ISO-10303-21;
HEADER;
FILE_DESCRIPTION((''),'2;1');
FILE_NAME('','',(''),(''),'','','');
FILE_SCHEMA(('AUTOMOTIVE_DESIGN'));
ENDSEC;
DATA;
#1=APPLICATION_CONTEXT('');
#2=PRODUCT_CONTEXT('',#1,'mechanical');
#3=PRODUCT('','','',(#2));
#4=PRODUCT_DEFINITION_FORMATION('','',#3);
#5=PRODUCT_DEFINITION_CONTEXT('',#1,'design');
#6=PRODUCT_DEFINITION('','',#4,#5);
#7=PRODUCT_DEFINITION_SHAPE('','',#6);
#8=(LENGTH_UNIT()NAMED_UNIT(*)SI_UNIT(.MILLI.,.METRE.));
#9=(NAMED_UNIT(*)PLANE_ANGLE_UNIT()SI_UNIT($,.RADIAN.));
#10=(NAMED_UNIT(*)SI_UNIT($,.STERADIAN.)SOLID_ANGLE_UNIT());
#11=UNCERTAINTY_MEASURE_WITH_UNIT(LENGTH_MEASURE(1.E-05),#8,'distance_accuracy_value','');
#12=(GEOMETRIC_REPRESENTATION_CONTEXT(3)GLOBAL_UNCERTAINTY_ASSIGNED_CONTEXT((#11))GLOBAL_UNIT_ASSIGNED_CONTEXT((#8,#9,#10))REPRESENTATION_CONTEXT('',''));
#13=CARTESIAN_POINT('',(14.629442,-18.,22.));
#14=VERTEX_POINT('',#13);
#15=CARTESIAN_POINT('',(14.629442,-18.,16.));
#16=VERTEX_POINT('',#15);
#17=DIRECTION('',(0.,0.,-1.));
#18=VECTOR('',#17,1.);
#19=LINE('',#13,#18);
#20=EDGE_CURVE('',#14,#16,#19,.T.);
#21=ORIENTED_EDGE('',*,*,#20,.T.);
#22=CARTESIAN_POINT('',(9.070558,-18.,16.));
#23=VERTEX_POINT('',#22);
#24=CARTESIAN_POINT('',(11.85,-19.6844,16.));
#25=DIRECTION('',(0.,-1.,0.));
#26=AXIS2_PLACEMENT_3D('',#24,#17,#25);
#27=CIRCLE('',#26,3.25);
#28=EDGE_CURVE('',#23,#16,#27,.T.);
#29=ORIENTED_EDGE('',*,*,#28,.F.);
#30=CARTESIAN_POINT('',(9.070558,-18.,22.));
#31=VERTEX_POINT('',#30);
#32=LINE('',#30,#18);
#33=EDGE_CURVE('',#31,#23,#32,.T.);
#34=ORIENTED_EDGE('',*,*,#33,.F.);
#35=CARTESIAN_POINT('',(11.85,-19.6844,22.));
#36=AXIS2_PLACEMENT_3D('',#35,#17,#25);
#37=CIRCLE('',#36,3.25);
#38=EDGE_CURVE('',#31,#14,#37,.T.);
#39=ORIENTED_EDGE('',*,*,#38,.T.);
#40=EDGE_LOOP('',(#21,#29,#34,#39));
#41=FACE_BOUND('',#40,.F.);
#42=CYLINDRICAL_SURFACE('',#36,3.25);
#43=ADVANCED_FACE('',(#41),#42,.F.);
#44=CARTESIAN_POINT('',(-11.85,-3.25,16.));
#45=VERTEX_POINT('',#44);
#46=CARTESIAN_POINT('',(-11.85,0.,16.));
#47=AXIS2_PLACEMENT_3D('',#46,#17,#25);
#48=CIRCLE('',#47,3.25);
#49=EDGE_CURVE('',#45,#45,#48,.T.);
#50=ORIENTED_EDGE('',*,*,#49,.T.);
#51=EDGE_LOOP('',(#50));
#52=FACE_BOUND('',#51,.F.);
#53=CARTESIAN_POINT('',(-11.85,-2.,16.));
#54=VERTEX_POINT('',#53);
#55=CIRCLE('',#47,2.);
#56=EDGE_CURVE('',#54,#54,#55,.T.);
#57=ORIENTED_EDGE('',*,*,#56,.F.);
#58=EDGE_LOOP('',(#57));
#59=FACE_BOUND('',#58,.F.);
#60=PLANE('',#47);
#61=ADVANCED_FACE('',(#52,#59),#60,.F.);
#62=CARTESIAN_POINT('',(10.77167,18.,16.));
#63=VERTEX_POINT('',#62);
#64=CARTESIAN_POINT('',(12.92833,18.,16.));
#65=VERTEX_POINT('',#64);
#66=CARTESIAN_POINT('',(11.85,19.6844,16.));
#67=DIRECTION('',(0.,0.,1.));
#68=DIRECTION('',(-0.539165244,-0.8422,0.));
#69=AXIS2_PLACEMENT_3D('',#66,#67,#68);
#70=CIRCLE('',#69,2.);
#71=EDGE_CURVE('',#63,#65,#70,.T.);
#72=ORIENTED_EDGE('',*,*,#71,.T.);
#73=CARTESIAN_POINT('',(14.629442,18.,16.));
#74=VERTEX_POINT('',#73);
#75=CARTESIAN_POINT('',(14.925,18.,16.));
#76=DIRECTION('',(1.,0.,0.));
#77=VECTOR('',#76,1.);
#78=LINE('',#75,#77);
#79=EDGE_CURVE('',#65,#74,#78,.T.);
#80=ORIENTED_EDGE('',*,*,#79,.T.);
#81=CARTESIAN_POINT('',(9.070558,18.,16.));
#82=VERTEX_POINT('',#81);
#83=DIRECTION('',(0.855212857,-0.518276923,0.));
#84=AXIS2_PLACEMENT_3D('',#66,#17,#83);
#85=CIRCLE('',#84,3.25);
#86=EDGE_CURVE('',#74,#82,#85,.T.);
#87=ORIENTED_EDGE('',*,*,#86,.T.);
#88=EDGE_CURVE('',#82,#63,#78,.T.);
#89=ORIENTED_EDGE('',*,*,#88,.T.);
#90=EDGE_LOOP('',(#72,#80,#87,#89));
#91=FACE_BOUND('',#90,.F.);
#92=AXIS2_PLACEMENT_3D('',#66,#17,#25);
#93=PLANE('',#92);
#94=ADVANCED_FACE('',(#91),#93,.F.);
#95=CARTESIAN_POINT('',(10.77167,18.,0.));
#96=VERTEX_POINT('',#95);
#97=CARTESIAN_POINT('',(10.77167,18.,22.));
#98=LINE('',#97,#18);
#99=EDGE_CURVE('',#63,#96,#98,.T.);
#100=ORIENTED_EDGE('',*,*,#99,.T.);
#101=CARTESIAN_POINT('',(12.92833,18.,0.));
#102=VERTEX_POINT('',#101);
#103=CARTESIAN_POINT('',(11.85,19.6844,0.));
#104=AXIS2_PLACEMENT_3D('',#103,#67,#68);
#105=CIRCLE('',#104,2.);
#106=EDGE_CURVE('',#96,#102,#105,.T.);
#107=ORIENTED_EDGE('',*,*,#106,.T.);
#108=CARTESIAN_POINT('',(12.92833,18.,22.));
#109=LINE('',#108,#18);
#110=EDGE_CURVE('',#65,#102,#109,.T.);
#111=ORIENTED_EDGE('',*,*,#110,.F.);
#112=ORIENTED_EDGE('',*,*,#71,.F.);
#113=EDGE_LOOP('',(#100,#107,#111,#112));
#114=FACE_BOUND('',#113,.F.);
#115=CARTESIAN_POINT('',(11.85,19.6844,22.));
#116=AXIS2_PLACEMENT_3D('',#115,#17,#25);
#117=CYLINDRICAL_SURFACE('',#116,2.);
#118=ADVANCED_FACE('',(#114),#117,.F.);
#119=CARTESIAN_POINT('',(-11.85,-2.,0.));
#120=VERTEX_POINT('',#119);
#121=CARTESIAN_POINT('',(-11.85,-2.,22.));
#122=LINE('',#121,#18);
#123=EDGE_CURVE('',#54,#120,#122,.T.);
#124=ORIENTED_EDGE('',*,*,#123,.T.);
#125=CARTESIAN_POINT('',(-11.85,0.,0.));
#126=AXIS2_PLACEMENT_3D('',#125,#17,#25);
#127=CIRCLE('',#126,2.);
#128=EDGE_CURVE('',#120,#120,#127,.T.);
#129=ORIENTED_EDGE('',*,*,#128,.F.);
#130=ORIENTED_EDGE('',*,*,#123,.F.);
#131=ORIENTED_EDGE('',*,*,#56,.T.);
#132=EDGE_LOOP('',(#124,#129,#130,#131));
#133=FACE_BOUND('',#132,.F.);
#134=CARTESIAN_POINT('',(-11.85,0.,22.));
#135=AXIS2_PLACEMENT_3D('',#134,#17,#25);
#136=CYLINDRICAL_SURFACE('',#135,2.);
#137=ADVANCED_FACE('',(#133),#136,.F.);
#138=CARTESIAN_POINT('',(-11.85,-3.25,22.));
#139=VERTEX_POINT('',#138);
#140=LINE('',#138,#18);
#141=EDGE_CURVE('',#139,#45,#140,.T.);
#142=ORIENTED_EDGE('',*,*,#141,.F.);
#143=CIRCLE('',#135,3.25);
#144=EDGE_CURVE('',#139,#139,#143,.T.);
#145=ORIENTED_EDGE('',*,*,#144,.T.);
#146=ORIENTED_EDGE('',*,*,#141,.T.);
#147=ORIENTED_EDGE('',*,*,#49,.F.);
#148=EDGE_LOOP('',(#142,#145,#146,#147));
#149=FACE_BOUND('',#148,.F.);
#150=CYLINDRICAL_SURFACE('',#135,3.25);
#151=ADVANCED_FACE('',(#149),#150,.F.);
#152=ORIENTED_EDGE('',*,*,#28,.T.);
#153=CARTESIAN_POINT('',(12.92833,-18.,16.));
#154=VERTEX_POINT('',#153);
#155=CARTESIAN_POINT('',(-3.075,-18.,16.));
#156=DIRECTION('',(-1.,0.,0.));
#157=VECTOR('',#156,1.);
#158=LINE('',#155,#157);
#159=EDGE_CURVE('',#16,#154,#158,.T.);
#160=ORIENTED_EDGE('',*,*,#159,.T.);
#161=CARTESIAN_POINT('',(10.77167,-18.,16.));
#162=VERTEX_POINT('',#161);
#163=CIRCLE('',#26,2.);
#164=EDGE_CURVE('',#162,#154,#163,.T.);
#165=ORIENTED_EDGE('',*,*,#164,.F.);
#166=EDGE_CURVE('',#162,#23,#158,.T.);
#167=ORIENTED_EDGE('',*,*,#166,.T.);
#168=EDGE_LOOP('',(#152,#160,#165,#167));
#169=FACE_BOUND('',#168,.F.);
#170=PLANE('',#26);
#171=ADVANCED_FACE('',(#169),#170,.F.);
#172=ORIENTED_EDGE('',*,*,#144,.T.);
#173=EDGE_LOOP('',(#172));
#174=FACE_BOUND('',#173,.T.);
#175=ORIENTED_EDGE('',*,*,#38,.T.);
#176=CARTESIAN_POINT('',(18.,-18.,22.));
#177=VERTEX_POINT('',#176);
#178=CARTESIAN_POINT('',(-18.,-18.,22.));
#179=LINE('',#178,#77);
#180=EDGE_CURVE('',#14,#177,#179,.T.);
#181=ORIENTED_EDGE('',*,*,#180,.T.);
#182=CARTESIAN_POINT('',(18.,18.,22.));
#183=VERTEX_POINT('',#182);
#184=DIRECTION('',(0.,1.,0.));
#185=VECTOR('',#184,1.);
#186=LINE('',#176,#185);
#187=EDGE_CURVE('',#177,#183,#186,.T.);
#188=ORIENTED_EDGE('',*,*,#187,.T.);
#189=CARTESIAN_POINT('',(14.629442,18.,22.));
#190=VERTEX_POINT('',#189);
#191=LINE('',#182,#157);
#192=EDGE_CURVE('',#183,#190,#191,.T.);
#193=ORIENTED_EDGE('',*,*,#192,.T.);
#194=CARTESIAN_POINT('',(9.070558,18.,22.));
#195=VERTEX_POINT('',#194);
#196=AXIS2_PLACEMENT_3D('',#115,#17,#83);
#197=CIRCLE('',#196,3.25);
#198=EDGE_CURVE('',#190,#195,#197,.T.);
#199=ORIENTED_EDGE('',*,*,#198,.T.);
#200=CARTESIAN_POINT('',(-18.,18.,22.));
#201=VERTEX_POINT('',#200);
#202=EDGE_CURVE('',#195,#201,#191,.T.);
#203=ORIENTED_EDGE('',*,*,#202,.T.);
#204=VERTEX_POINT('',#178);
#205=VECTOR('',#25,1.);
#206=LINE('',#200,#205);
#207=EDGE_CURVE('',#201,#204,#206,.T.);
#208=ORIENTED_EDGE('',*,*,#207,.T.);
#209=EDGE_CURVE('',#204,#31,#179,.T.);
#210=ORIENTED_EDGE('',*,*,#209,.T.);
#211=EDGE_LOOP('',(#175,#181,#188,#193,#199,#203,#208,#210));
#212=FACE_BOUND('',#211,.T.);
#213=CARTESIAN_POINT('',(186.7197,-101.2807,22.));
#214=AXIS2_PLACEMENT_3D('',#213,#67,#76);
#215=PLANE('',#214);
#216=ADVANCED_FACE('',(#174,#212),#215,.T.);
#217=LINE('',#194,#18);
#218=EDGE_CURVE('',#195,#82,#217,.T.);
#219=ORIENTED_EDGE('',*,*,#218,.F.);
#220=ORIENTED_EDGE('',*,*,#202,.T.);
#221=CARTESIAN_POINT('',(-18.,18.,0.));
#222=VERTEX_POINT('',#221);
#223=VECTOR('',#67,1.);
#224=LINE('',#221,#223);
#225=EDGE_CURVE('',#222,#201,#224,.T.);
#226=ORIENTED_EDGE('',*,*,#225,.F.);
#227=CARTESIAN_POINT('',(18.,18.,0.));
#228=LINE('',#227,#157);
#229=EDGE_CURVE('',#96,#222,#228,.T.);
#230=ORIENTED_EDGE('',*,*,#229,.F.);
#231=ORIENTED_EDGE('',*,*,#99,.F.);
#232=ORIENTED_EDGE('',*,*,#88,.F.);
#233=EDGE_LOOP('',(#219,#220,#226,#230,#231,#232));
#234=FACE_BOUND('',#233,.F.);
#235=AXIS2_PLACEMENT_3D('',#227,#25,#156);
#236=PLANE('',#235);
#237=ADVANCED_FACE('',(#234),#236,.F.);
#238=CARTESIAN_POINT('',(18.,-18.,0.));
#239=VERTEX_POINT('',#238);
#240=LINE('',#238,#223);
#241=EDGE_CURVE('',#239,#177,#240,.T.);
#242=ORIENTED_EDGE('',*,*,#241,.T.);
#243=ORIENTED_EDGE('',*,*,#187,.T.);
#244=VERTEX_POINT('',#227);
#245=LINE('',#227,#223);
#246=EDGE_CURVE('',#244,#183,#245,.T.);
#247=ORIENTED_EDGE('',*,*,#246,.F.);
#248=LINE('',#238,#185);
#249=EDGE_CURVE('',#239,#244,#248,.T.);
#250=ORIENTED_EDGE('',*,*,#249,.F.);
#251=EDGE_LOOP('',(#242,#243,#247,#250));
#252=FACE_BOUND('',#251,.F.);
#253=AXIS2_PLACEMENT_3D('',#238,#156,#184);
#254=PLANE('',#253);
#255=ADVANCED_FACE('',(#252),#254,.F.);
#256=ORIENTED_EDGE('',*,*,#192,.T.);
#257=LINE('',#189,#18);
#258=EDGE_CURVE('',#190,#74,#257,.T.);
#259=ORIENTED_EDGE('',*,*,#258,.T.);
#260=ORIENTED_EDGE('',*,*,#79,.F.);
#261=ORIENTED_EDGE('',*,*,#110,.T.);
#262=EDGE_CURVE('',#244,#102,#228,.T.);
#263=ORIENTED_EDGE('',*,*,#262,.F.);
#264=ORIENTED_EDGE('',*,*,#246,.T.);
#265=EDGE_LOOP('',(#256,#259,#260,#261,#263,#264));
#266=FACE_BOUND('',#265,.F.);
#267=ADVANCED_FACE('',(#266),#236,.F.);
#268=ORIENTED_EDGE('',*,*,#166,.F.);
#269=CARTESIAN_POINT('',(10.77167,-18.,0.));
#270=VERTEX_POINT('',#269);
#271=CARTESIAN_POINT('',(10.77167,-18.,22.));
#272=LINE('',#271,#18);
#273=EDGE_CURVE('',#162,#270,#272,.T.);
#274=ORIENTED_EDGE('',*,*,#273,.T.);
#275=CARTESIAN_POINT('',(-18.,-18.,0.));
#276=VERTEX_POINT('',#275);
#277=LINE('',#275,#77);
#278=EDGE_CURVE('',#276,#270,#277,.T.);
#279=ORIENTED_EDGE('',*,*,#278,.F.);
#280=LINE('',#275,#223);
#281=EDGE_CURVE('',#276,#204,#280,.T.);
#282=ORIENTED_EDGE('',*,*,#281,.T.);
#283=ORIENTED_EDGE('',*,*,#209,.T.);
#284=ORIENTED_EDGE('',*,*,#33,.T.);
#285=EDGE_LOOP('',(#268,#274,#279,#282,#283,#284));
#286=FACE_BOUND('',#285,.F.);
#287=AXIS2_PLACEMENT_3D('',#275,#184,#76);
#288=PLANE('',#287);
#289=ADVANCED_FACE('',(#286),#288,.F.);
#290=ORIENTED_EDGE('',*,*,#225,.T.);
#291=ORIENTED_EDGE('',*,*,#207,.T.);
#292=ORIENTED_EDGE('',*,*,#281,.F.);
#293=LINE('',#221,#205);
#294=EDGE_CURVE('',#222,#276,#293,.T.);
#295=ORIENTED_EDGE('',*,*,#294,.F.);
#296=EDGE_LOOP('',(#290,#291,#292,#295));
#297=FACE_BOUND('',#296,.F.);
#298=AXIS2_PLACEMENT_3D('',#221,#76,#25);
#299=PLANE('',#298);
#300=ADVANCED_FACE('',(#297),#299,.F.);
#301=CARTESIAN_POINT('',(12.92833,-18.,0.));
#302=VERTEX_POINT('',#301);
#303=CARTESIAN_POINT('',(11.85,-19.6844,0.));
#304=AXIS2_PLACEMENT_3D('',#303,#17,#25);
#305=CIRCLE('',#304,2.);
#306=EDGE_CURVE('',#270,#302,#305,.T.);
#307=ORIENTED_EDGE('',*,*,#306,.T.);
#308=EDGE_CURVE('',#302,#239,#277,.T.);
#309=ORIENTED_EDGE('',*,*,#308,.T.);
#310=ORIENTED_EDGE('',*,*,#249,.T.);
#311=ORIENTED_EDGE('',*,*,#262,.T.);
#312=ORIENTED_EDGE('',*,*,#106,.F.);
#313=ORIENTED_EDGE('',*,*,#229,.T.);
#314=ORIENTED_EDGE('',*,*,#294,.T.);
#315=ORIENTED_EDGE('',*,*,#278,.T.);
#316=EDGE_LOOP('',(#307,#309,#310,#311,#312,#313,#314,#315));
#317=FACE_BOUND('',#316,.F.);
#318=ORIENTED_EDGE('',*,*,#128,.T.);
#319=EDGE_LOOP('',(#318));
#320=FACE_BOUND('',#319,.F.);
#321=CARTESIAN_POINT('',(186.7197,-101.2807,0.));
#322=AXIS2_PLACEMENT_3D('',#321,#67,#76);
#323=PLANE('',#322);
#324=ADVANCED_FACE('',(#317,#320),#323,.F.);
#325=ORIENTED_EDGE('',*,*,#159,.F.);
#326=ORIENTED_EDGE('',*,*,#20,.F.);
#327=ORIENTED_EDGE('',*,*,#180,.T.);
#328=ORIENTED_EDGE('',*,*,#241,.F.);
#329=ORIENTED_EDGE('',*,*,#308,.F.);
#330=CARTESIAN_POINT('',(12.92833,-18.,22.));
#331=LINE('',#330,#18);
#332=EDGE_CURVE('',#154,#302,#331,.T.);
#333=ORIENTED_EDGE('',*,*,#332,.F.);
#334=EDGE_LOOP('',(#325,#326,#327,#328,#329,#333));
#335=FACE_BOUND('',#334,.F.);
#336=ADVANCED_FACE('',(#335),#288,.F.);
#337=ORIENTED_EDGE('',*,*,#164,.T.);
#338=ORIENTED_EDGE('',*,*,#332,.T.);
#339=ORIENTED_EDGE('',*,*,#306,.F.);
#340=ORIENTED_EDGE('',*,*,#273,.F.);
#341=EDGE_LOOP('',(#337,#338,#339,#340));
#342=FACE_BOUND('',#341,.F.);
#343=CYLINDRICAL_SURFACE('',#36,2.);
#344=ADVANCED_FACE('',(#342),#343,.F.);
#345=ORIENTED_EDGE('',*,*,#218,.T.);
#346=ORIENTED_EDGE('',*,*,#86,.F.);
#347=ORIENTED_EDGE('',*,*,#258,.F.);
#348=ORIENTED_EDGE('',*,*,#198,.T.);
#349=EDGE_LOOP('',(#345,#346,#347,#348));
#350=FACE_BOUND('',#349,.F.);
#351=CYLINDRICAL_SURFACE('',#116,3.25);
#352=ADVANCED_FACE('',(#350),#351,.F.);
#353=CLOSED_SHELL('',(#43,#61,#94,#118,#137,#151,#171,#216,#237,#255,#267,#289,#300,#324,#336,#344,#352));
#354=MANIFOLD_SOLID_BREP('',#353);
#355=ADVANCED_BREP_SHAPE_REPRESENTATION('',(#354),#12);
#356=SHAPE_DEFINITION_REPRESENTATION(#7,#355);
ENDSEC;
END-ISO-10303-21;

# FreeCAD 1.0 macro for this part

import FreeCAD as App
import Part
import Sketcher
from FreeCAD import Vector
Q = App.Units.Quantity


def add_polygon(sketch, points):
    """Adds a closed chain of lines whose ends are joined by coincident constraints."""
    first, n = sketch.GeometryCount, len(points)
    for a, b in zip(points, points[1:] + points[:1]):
        sketch.addGeometry(Part.LineSegment(App.Vector(*a, 0), App.Vector(*b, 0)), False)
    for i in range(n):
        sketch.addConstraint(Sketcher.Constraint("Coincident", first + i, 2, first + (i + 1) % n, 1))

doc = App.newDocument("Part")
body = doc.addObject("PartDesign::Body", "Body")

# Sketch on XY plane
sketch1 = body.newObject("Sketcher::SketchObject", "Sketch")
sketch1.AttachmentSupport = (doc.getObject("XY_Plane"), [""])
sketch1.MapMode = "FlatFace"
add_polygon(sketch1, [(18, -18), (18, 18), (-18, 18), (-18, -18)])  # lines 0-3
sketch1.addConstraint([
    Sketcher.Constraint("Vertical", 0),
    Sketcher.Constraint("Horizontal", 1),
    Sketcher.Constraint("Vertical", 2),
    Sketcher.Constraint("Horizontal", 3),
    Sketcher.Constraint("Symmetric", 0, 2, 2, 2, -1, 1),
    Sketcher.Constraint("Equal", 3, 0),
    Sketcher.Constraint("DistanceX", 1, 2, 1, 1, Q("36 mm")),
])
pad1 = body.newObject("PartDesign::Pad", "Pad")
pad1.Profile = sketch1
pad1.Length = 22

# Sketch on XY plane
sketch2 = body.newObject("Sketcher::SketchObject", "Sketch001")
sketch2.AttachmentSupport = (doc.getObject("XY_Plane"), [""])
sketch2.MapMode = "FlatFace"
sketch2.AttachmentOffset = App.Placement(Vector(0, 0, 22), App.Rotation())
sketch2.addGeometry([
    Part.Circle(Vector(11.8, -19.7, 0), Vector(0, 0, 1), 3.2),
    Part.Circle(Vector(11.8, 19.7, 0), Vector(0, 0, 1), 3.2),
    Part.Circle(Vector(-11.8, 0, 0), Vector(0, 0, 1), 3.2),
], False)
sketch2.addConstraint([
    Sketcher.Constraint("Equal", 0, 1),
    Sketcher.Constraint("Equal", 1, 2),
    Sketcher.Constraint("Symmetric", 0, 3, 1, 3, -1),
    Sketcher.Constraint("PointOnObject", 2, 3, -1),
    Sketcher.Constraint("Diameter", 0, Q("6.5 mm")),
    Sketcher.Constraint("DistanceX", 2, 3, 0, 3, Q("23.7 mm")),
    Sketcher.Constraint("DistanceX", -1, 1, 0, 3, Q("11.85 mm")),
    Sketcher.Constraint("DistanceY", 0, 3, -1, 1, Q("19.6844 mm")),
])
doc.recompute()
hole = body.newObject("PartDesign::Hole", "Hole")
hole.Profile = sketch2
hole.ThreadType = "None"
hole.Diameter = 6.5
hole.DepthType = "Dimension"
hole.Depth = 6
hole.DrillPoint = "Flat"

# Sketch on XY plane
sketch3 = body.newObject("Sketcher::SketchObject", "Sketch002")
sketch3.AttachmentSupport = (doc.getObject("XY_Plane"), [""])
sketch3.MapMode = "FlatFace"
sketch3.AttachmentOffset = App.Placement(Vector(0, 0, 22), App.Rotation())
sketch3.addGeometry([
    Part.Circle(Vector(-11.8, 0, 0), Vector(0, 0, 1), 2),
    Part.Circle(Vector(11.8, -19.7, 0), Vector(0, 0, 1), 2),
    Part.Circle(Vector(11.8, 19.7, 0), Vector(0, 0, 1), 2),
], False)
sketch3.addConstraint([
    Sketcher.Constraint("Equal", 0, 1),
    Sketcher.Constraint("Equal", 1, 2),
    Sketcher.Constraint("Symmetric", 1, 3, 2, 3, -1),
    Sketcher.Constraint("PointOnObject", 0, 3, -1),
    Sketcher.Constraint("Diameter", 0, Q("4 mm")),
    Sketcher.Constraint("DistanceX", 0, 3, 1, 3, Q("23.7 mm")),
    Sketcher.Constraint("DistanceX", 0, 3, -1, 1, Q("11.85 mm")),
    Sketcher.Constraint("DistanceY", 1, 3, -1, 1, Q("19.6844 mm")),
])
doc.recompute()
hole2 = body.newObject("PartDesign::Hole", "Hole001")
hole2.Profile = sketch3
hole2.ThreadType = "None"
hole2.Diameter = 4
hole2.DepthType = "ThroughAll"

doc.recompute()
